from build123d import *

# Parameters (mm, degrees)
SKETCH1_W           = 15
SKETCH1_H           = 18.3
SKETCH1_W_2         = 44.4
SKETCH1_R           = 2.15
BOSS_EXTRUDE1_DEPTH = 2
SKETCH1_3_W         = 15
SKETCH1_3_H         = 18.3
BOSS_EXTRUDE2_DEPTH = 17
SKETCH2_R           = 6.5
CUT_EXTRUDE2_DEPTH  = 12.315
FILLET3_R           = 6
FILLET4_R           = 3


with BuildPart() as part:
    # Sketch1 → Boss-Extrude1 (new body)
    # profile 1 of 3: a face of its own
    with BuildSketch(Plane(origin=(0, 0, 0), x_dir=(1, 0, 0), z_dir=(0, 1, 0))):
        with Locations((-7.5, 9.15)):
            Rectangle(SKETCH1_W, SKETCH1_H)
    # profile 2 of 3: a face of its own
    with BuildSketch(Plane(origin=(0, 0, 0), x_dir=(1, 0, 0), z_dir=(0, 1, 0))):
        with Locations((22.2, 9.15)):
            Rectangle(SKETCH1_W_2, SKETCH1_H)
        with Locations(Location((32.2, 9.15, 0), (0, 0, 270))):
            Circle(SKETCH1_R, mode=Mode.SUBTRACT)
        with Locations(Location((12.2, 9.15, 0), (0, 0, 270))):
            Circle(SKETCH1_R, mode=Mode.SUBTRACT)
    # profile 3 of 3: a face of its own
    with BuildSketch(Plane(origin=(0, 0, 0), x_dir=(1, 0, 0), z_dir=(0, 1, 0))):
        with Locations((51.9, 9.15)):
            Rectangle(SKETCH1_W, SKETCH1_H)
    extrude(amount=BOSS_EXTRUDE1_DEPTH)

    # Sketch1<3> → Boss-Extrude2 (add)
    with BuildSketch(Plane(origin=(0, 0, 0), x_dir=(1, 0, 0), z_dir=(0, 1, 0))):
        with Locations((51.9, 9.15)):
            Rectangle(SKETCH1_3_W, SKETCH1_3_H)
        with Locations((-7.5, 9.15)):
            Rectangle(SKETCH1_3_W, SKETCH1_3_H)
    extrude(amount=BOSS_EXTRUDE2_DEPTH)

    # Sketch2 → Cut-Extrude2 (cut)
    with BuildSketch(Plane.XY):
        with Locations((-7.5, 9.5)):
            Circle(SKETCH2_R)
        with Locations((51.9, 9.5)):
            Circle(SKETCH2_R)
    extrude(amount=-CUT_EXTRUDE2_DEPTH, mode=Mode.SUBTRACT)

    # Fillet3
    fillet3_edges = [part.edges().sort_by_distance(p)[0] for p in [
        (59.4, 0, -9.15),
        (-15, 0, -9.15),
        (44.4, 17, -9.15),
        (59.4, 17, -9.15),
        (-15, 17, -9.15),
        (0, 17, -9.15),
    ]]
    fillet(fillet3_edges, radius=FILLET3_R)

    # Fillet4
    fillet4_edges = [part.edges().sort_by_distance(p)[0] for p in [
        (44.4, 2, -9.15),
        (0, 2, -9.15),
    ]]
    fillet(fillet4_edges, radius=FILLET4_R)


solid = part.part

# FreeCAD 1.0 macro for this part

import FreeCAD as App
import Part
import Sketcher
Q = App.Units.Quantity


def edges_at(feature, points):
    """Names of the edges that pass closest to the given points."""
    edges = feature.Shape.Edges
    near = lambda p: min(range(len(edges)), key=lambda i: edges[i].distToShape(Part.Vertex(*p))[0])
    return sorted({f"Edge{near(p) + 1}" for p in points})

doc = App.newDocument("Part")
params = doc.addObject("Spreadsheet::Sheet", "Params")
for row, (alias, value) in enumerate([
    ("sketch1_diameter", "4.3 mm"),
    ("sketch1_width", "74.4 mm"),
    ("sketch1_height", "18.3 mm"),
    ("pad1_length", "2 mm"),
    ("sketch2_width", "15 mm"),
    ("sketch2_height", "18.3 mm"),
    ("pad2_length", "17 mm"),
    ("sketch3_diameter", "13 mm"),
    ("pocket1_length", "12.315 mm"),
    ("fillet_radius", "6 mm"),
    ("fillet2_radius", "3 mm"),
], start=1):
    params.set(f"A{row}", alias)
    params.set(f"B{row}", "=" + value)
    params.setAlias(f"B{row}", alias)

body = doc.addObject("PartDesign::Body", "Body")

# Sketch on XZ plane
sketch1 = body.newObject("Sketcher::SketchObject", "Sketch")
sketch1.AttachmentSupport = (doc.getObject("XZ_Plane"), [""])
sketch1.MapMode = "FlatFace"
sketch1.addGeometry([
    Part.LineSegment(App.Vector(-15, -18.3, 0), App.Vector(-15, 0, 0)),  # 0
    Part.LineSegment(App.Vector(-15, 0, 0), App.Vector(59.4, 0, 0)),  # 1
    Part.LineSegment(App.Vector(59.4, 0, 0), App.Vector(59.4, -18.3, 0)),  # 2
    Part.LineSegment(App.Vector(59.4, -18.3, 0), App.Vector(-15, -18.3, 0)),  # 3
    Part.Circle(App.Vector(32.2, -9.2, 0), App.Vector(0, 0, 1), 2.1),  # 4
    Part.Circle(App.Vector(12.2, -9.2, 0), App.Vector(0, 0, 1), 2.1),  # 5
], False)
sketch1.addConstraint([
    Sketcher.Constraint("Coincident", 0, 2, 1, 1),
    Sketcher.Constraint("Coincident", 1, 2, 2, 1),
    Sketcher.Constraint("Coincident", 2, 2, 3, 1),
    Sketcher.Constraint("Coincident", 3, 2, 0, 1),
    Sketcher.Constraint("Vertical", 0),
    Sketcher.Constraint("Horizontal", 1),
    Sketcher.Constraint("Vertical", 2),
    Sketcher.Constraint("Horizontal", 3),
    Sketcher.Constraint("Equal", 4, 5),
    Sketcher.Constraint("PointOnObject", 0, 2, -1),
    Sketcher.Constraint("Horizontal", 4, 3, 5, 3),
    Sketcher.Constraint("Diameter", 4, Q("4.3 mm")),
    Sketcher.Constraint("DistanceX", 1, 1, 1, 2, Q("74.4 mm")),
    Sketcher.Constraint("DistanceY", 0, 1, 0, 2, Q("18.3 mm")),
    Sketcher.Constraint("DistanceX", 0, 2, -1, 1, Q("15 mm")),
    Sketcher.Constraint("DistanceX", 5, 3, 4, 3, Q("20 mm")),
    Sketcher.Constraint("DistanceX", -1, 1, 4, 3, Q("32.2 mm")),
    Sketcher.Constraint("DistanceY", 4, 3, -1, 1, Q("9.15 mm")),
])
sketch1.setExpression("Constraints[11]", "Params.sketch1_diameter")
sketch1.setExpression("Constraints[12]", "Params.sketch1_width")
sketch1.setExpression("Constraints[13]", "Params.sketch1_height")
pad1 = body.newObject("PartDesign::Pad", "Pad")
pad1.Profile = sketch1
pad1.setExpression("Length", "Params.pad1_length")
pad1.Reversed = True

# Sketch on XZ plane
sketch2 = body.newObject("Sketcher::SketchObject", "Sketch001")
sketch2.AttachmentSupport = (doc.getObject("XZ_Plane"), [""])
sketch2.MapMode = "FlatFace"
sketch2.addGeometry([
    Part.LineSegment(App.Vector(44, -18, 0), App.Vector(44, 0, 0)),  # 0
    Part.LineSegment(App.Vector(44, 0, 0), App.Vector(59, 0, 0)),  # 1
    Part.LineSegment(App.Vector(59, 0, 0), App.Vector(59, -18, 0)),  # 2
    Part.LineSegment(App.Vector(59, -18, 0), App.Vector(44, -18, 0)),  # 3
    Part.LineSegment(App.Vector(-15, -18, 0), App.Vector(-15, 0, 0)),  # 4
    Part.LineSegment(App.Vector(-15, 0, 0), App.Vector(0, 0, 0)),  # 5
    Part.LineSegment(App.Vector(0, 0, 0), App.Vector(0, -18, 0)),  # 6
    Part.LineSegment(App.Vector(0, -18, 0), App.Vector(-15, -18, 0)),  # 7
], False)
sketch2.addConstraint([
    Sketcher.Constraint("Coincident", 0, 2, 1, 1),
    Sketcher.Constraint("Coincident", 1, 2, 2, 1),
    Sketcher.Constraint("Coincident", 2, 2, 3, 1),
    Sketcher.Constraint("Coincident", 3, 2, 0, 1),
    Sketcher.Constraint("Coincident", 4, 2, 5, 1),
    Sketcher.Constraint("Coincident", 5, 2, 6, 1),
    Sketcher.Constraint("Coincident", 6, 2, 7, 1),
    Sketcher.Constraint("Coincident", 7, 2, 4, 1),
    Sketcher.Constraint("Vertical", 0),
    Sketcher.Constraint("Horizontal", 1),
    Sketcher.Constraint("Vertical", 2),
    Sketcher.Constraint("Horizontal", 3),
    Sketcher.Constraint("Vertical", 4),
    Sketcher.Constraint("Horizontal", 5),
    Sketcher.Constraint("Vertical", 6),
    Sketcher.Constraint("Horizontal", 7),
    Sketcher.Constraint("Coincident", 5, 2, -1, 1),
    Sketcher.Constraint("PointOnObject", 0, 2, -1),
    Sketcher.Constraint("Horizontal", 3, 2, 6, 2),
    Sketcher.Constraint("Equal", 3, 5),
    Sketcher.Constraint("DistanceX", 1, 1, 1, 2, Q("15 mm")),
    Sketcher.Constraint("DistanceY", 0, 1, 0, 2, Q("18.3 mm")),
    Sketcher.Constraint("DistanceX", -1, 1, 0, 2, Q("44.4 mm")),
])
sketch2.setExpression("Constraints[20]", "Params.sketch2_width")
sketch2.setExpression("Constraints[21]", "Params.sketch2_height")
pad2 = body.newObject("PartDesign::Pad", "Pad001")
pad2.Profile = sketch2
pad2.setExpression("Length", "Params.pad2_length")
pad2.Reversed = True

# Sketch on XY plane
sketch3 = body.newObject("Sketcher::SketchObject", "Sketch002")
sketch3.AttachmentSupport = (doc.getObject("XY_Plane"), [""])
sketch3.MapMode = "FlatFace"
sketch3.addGeometry([
    Part.Circle(App.Vector(-8, 10, 0), App.Vector(0, 0, 1), 6),
    Part.Circle(App.Vector(52, 10, 0), App.Vector(0, 0, 1), 6),
], False)
sketch3.addConstraint([
    Sketcher.Constraint("Equal", 0, 1),
    Sketcher.Constraint("Horizontal", 0, 3, 1, 3),
    Sketcher.Constraint("Diameter", 0, Q("13 mm")),
    Sketcher.Constraint("DistanceX", 0, 3, -1, 1, Q("7.5 mm")),
    Sketcher.Constraint("DistanceY", -1, 1, 0, 3, Q("9.5 mm")),
    Sketcher.Constraint("DistanceX", -1, 1, 1, 3, Q("51.9 mm")),
])
sketch3.setExpression("Constraints[2]", "Params.sketch3_diameter")
pocket1 = body.newObject("PartDesign::Pocket", "Pocket")
pocket1.Profile = sketch3
pocket1.setExpression("Length", "Params.pocket1_length")
doc.recompute()

fillet = body.newObject("PartDesign::Fillet", "Fillet")
fillet.Base = (pocket1, edges_at(pocket1, [
    (59.4, 0, -9.15),
    (-15, 0, -9.15),
    (44.4, 17, -9.15),
    (59.4, 17, -9.15),
    (-15, 17, -9.15),
    (0, 17, -9.15),
]))
fillet.setExpression("Radius", "Params.fillet_radius")
doc.recompute()

fillet2 = body.newObject("PartDesign::Fillet", "Fillet001")
fillet2.Base = (fillet, edges_at(fillet, [(44.4, 2, -9.15), (0, 2, -9.15)]))
fillet2.setExpression("Radius", "Params.fillet2_radius")

doc.recompute()
